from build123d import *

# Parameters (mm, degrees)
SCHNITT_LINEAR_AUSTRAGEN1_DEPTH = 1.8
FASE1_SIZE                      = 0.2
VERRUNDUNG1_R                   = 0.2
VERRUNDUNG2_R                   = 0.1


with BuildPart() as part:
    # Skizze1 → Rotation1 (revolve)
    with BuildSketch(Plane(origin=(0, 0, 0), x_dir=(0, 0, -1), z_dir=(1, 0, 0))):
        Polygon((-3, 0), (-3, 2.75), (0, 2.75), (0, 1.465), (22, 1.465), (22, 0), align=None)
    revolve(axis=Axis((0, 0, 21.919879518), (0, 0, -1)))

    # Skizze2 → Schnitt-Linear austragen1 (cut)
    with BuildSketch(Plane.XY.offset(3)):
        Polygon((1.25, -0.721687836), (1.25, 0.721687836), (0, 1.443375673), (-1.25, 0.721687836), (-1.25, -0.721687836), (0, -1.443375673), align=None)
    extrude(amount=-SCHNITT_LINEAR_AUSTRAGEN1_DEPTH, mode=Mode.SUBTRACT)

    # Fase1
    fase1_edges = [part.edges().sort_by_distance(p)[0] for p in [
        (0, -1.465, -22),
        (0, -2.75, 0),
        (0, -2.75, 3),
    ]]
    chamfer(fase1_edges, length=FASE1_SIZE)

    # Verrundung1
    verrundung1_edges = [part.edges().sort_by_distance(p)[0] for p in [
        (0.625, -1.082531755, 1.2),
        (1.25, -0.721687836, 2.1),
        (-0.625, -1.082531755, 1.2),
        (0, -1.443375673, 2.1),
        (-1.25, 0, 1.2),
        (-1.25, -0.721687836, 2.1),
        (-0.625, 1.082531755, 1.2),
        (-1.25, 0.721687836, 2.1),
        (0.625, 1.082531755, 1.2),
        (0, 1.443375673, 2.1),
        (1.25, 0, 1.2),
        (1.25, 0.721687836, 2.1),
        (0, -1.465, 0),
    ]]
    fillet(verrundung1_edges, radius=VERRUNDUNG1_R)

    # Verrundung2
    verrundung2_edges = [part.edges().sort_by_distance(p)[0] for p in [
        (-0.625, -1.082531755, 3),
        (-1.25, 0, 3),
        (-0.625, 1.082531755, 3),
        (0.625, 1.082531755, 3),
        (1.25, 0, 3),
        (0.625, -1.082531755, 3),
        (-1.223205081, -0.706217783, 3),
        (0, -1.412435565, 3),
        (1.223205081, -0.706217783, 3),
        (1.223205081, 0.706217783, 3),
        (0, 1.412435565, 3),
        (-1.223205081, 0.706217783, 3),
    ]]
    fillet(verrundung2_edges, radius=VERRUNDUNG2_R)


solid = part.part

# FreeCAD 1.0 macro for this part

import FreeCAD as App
import Part
import Sketcher

V = App.Vector
Q = App.Units.Quantity


def edges_at(feature, points):
    """Names of the edges that pass closest to the given points."""
    edges = feature.Shape.Edges
    near = lambda p: min(range(len(edges)), key=lambda i: edges[i].distToShape(Part.Vertex(*p))[0])
    return sorted({f"Edge{near(p) + 1}" for p in points})

doc = App.newDocument("Part")
body = doc.addObject("PartDesign::Body", "Body")

sketch1 = doc.addObject("Sketcher::SketchObject", "Sketch")
body.addObject(sketch1)
sketch1.AttachmentSupport = (doc.YZ_Plane, [""])
sketch1.MapMode = "FlatFace"
sketch1.addGeometry([
    Part.LineSegment(V(2.8, 3, 0), V(0, 3, 0)),
    Part.LineSegment(V(0, 3, 0), V(0, -22, 0)),
    Part.LineSegment(V(0, -22, 0), V(1.5, -22, 0)),
    Part.LineSegment(V(1.5, -22, 0), V(1.5, 0, 0)),
    Part.LineSegment(V(1.5, 0, 0), V(2.8, 0, 0)),
    Part.LineSegment(V(2.8, 0, 0), V(2.8, 3, 0)),
], False)
sketch1.addConstraint([
    Sketcher.Constraint("Coincident", 0, 2, 1, 1),
    Sketcher.Constraint("Coincident", 1, 2, 2, 1),
    Sketcher.Constraint("Coincident", 2, 2, 3, 1),
    Sketcher.Constraint("Coincident", 3, 2, 4, 1),
    Sketcher.Constraint("Coincident", 4, 2, 5, 1),
    Sketcher.Constraint("Coincident", 5, 2, 0, 1),
    Sketcher.Constraint("Horizontal", 0),
    Sketcher.Constraint("Vertical", 1),
    Sketcher.Constraint("Horizontal", 2),
    Sketcher.Constraint("Vertical", 3),
    Sketcher.Constraint("Horizontal", 4),
    Sketcher.Constraint("Vertical", 5),
    Sketcher.Constraint("PointOnObject", 0, 2, -2),
    Sketcher.Constraint("PointOnObject", 3, 2, -1),
    Sketcher.Constraint("DistanceY", 1, 2, 1, 1, 25.0),
    Sketcher.Constraint("DistanceY", 3, 1, 3, 2, 22.0),
    Sketcher.Constraint("DistanceX", 0, 2, 0, 1, 2.75),
    Sketcher.Constraint("DistanceX", 2, 1, 2, 2, 1.465),
])
revolution = doc.addObject("PartDesign::Revolution", "Revolution")
body.addObject(revolution)
revolution.Profile = sketch1
revolution.ReferenceAxis = (sketch1, ["V_Axis"])
revolution.Angle = 360

sketch2 = doc.addObject("Sketcher::SketchObject", "Sketch001")
body.addObject(sketch2)
sketch2.AttachmentSupport = (doc.XY_Plane, [""])
sketch2.MapMode = "FlatFace"
sketch2.AttachmentOffset = App.Placement(V(0, 0, 3), App.Rotation())
sketch2.addGeometry([
    Part.LineSegment(V(1.2, -0.7, 0), V(1.2, 0.7, 0)),
    Part.LineSegment(V(1.2, 0.7, 0), V(0, 1.4, 0)),
    Part.LineSegment(V(0, 1.4, 0), V(-1.2, 0.7, 0)),
    Part.LineSegment(V(-1.2, 0.7, 0), V(-1.2, -0.7, 0)),
    Part.LineSegment(V(-1.2, -0.7, 0), V(0, -1.4, 0)),
    Part.LineSegment(V(0, -1.4, 0), V(1.2, -0.7, 0)),
], False)
sketch2.addConstraint([
    Sketcher.Constraint("Coincident", 0, 2, 1, 1),
    Sketcher.Constraint("Coincident", 1, 2, 2, 1),
    Sketcher.Constraint("Coincident", 2, 2, 3, 1),
    Sketcher.Constraint("Coincident", 3, 2, 4, 1),
    Sketcher.Constraint("Coincident", 4, 2, 5, 1),
    Sketcher.Constraint("Coincident", 5, 2, 0, 1),
    Sketcher.Constraint("Vertical", 0),
    Sketcher.Constraint("Vertical", 3),
    Sketcher.Constraint("Symmetric", 0, 2, 3, 2, -1, 1),
    Sketcher.Constraint("Symmetric", 1, 2, 4, 2, -1, 1),
    Sketcher.Constraint("PointOnObject", 1, 2, -2),
    Sketcher.Constraint("Parallel", 2, 5),
    Sketcher.Constraint("Horizontal", 0, 2, 2, 2),
    Sketcher.Constraint("Angle", 1, Q("150 deg")),
    Sketcher.Constraint("DistanceX", 2, 2, 0, 2, 2.5),
    Sketcher.Constraint("DistanceY", 0, 1, 0, 2, 1.443376),
])
pocket1 = doc.addObject("PartDesign::Pocket", "Pocket")
body.addObject(pocket1)
pocket1.Profile = sketch2
pocket1.Length = 1.8
doc.recompute()

chamfer = doc.addObject("PartDesign::Chamfer", "Chamfer")
body.addObject(chamfer)
chamfer.Base = (pocket1, edges_at(pocket1, [(0, -1.465, -22), (0, -2.75, 0), (0, -2.75, 3)]))
chamfer.Size = 0.2
doc.recompute()

fillet = doc.addObject("PartDesign::Fillet", "Fillet")
body.addObject(fillet)
fillet.Base = (chamfer, edges_at(chamfer, [
    (0.625, -1.083, 1.2),
    (1.25, -0.722, 2.1),
    (-0.625, -1.083, 1.2),
    (0, -1.443, 2.1),
    (-1.25, 0, 1.2),
    (-1.25, -0.722, 2.1),
    (-0.625, 1.083, 1.2),
    (-1.25, 0.722, 2.1),
    (0.625, 1.083, 1.2),
    (0, 1.443, 2.1),
    (1.25, 0, 1.2),
    (1.25, 0.722, 2.1),
    (0, -1.465, 0),
]))
fillet.Radius = 0.2
doc.recompute()

fillet2 = doc.addObject("PartDesign::Fillet", "Fillet001")
body.addObject(fillet2)
fillet2.Base = (fillet, edges_at(fillet, [
    (-0.625, -1.083, 3),
    (-1.25, 0, 3),
    (-0.625, 1.083, 3),
    (0.625, 1.083, 3),
    (1.25, 0, 3),
    (0.625, -1.083, 3),
    (-1.223, -0.706, 3),
    (0, -1.412, 3),
    (1.223, -0.706, 3),
    (1.223, 0.706, 3),
    (0, 1.412, 3),
    (-1.223, 0.706, 3),
]))
fillet2.Radius = 0.1

doc.recompute()
